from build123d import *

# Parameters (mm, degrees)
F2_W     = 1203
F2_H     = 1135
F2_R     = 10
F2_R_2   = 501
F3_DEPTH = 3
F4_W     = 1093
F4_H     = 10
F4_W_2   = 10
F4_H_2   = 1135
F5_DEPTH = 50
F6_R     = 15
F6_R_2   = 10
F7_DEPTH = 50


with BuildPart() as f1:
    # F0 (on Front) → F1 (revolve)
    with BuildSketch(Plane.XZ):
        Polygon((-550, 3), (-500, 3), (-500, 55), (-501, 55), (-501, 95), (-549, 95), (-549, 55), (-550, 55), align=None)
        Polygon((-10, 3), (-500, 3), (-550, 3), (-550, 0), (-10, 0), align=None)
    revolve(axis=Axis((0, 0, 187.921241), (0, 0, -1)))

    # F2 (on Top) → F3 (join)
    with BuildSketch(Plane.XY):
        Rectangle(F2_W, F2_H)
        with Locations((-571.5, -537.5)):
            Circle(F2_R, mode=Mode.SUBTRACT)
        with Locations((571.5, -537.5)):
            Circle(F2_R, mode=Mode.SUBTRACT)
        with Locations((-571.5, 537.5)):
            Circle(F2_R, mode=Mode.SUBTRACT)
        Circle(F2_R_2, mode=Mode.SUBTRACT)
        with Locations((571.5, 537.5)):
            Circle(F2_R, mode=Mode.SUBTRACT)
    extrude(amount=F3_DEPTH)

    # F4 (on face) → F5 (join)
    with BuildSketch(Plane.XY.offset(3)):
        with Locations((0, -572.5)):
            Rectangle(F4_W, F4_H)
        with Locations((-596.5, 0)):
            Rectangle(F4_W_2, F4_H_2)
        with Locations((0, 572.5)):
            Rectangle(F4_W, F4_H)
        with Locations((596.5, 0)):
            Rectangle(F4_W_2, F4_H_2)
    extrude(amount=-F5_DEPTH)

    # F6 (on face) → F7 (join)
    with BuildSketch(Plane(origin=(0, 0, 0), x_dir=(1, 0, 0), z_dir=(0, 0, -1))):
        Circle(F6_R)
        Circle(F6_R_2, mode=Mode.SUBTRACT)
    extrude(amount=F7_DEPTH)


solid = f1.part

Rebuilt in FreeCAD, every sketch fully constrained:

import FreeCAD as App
import Part
import Sketcher
Q = App.Units.Quantity

doc = App.newDocument("Part")
body = doc.addObject("PartDesign::Body", "Body")

sketch1 = doc.addObject("Sketcher::SketchObject", "Sketch")
body.addObject(sketch1)
sketch1.AttachmentSupport = (doc.XZ_Plane, [""])
sketch1.MapMode = "FlatFace"
sketch1.addGeometry([
    Part.LineSegment(App.Vector(-500, 3, 0), App.Vector(-500, 55, 0)),
    Part.LineSegment(App.Vector(-500, 55, 0), App.Vector(-501, 55, 0)),
    Part.LineSegment(App.Vector(-501, 55, 0), App.Vector(-501, 95, 0)),
    Part.LineSegment(App.Vector(-501, 95, 0), App.Vector(-549, 95, 0)),
    Part.LineSegment(App.Vector(-549, 95, 0), App.Vector(-549, 55, 0)),
    Part.LineSegment(App.Vector(-549, 55, 0), App.Vector(-550, 55, 0)),
    Part.LineSegment(App.Vector(-550, 55, 0), App.Vector(-550, 0, 0)),
    Part.LineSegment(App.Vector(-550, 0, 0), App.Vector(-10, 0, 0)),
    Part.LineSegment(App.Vector(-10, 0, 0), App.Vector(-10, 3, 0)),
    Part.LineSegment(App.Vector(-10, 3, 0), App.Vector(-500, 3, 0)),
], False)
sketch1.addConstraint([
    Sketcher.Constraint("Coincident", 0, 2, 1, 1),
    Sketcher.Constraint("Coincident", 1, 2, 2, 1),
    Sketcher.Constraint("Coincident", 2, 2, 3, 1),
    Sketcher.Constraint("Coincident", 3, 2, 4, 1),
    Sketcher.Constraint("Coincident", 4, 2, 5, 1),
    Sketcher.Constraint("Coincident", 5, 2, 6, 1),
    Sketcher.Constraint("Coincident", 6, 2, 7, 1),
    Sketcher.Constraint("Coincident", 7, 2, 8, 1),
    Sketcher.Constraint("Coincident", 8, 2, 9, 1),
    Sketcher.Constraint("Coincident", 9, 2, 0, 1),
    Sketcher.Constraint("Vertical", 0),
    Sketcher.Constraint("Horizontal", 1),
    Sketcher.Constraint("Vertical", 2),
    Sketcher.Constraint("Horizontal", 3),
    Sketcher.Constraint("Vertical", 4),
    Sketcher.Constraint("Horizontal", 5),
    Sketcher.Constraint("Vertical", 6),
    Sketcher.Constraint("Horizontal", 7),
    Sketcher.Constraint("Vertical", 8),
    Sketcher.Constraint("Horizontal", 9),
    Sketcher.Constraint("PointOnObject", 6, 2, -1),
    Sketcher.Constraint("Horizontal", 1, 2, 4, 2),
    Sketcher.Constraint("Equal", 1, 5),
    Sketcher.Constraint("DistanceX", 1, 2, 1, 1, Q("1 mm")),
    Sketcher.Constraint("DistanceX", 3, 2, 3, 1, Q("48 mm")),
    Sketcher.Constraint("DistanceX", 7, 1, 7, 2, Q("540 mm")),
    Sketcher.Constraint("DistanceY", 0, 1, 0, 2, Q("52 mm")),
    Sketcher.Constraint("DistanceY", 2, 1, 2, 2, Q("40 mm")),
    Sketcher.Constraint("DistanceY", 6, 2, 6, 1, Q("55 mm")),
    Sketcher.Constraint("DistanceX", 0, 2, -1, 1, Q("500 mm")),
])
revolution = doc.addObject("PartDesign::Revolution", "Revolution")
body.addObject(revolution)
revolution.Profile = sketch1
revolution.ReferenceAxis = (sketch1, ["V_Axis"])
revolution.Angle = 360

sketch2 = doc.addObject("Sketcher::SketchObject", "Sketch001")
body.addObject(sketch2)
sketch2.AttachmentSupport = (doc.XY_Plane, [""])
sketch2.MapMode = "FlatFace"
sketch2.addGeometry([
    Part.LineSegment(App.Vector(-602, 568, 0), App.Vector(-602, -568, 0)),
    Part.LineSegment(App.Vector(-602, -568, 0), App.Vector(602, -568, 0)),
    Part.LineSegment(App.Vector(602, -568, 0), App.Vector(602, 568, 0)),
    Part.LineSegment(App.Vector(602, 568, 0), App.Vector(-602, 568, 0)),
    Part.Circle(App.Vector(-572, -538, 0), App.Vector(0, 0, 1), 10),
    Part.Circle(App.Vector(572, -538, 0), App.Vector(0, 0, 1), 10),
    Part.Circle(App.Vector(-572, 538, 0), App.Vector(0, 0, 1), 10),
    Part.Circle(App.Vector(0, 0, 0), App.Vector(0, 0, 1), 501),
    Part.Circle(App.Vector(572, 538, 0), App.Vector(0, 0, 1), 10),
], False)
sketch2.addConstraint([
    Sketcher.Constraint("Coincident", 0, 2, 1, 1),
    Sketcher.Constraint("Coincident", 1, 2, 2, 1),
    Sketcher.Constraint("Coincident", 2, 2, 3, 1),
    Sketcher.Constraint("Coincident", 3, 2, 0, 1),
    Sketcher.Constraint("Vertical", 0),
    Sketcher.Constraint("Horizontal", 1),
    Sketcher.Constraint("Vertical", 2),
    Sketcher.Constraint("Horizontal", 3),
    Sketcher.Constraint("Coincident", 7, 3, -1, 1),
    Sketcher.Constraint("Equal", 4, 5),
    Sketcher.Constraint("Equal", 5, 6),
    Sketcher.Constraint("Equal", 6, 8),
    Sketcher.Constraint("Symmetric", 5, 3, 6, 3, -1, 1),
    Sketcher.Constraint("Symmetric", 4, 3, 8, 3, -1, 1),
    Sketcher.Constraint("Symmetric", 0, 2, 2, 2, -1, 1),
    Sketcher.Constraint("Symmetric", 4, 3, 5, 3, -2),
    Sketcher.Constraint("Diameter", 4, Q("20 mm")),
    Sketcher.Constraint("Diameter", 7, Q("1002 mm")),
    Sketcher.Constraint("DistanceX", 1, 1, 1, 2, Q("1203 mm")),
    Sketcher.Constraint("DistanceY", 0, 2, 0, 1, Q("1135 mm")),
    Sketcher.Constraint("DistanceX", 4, 3, 5, 3, Q("1143 mm")),
    Sketcher.Constraint("DistanceY", 4, 3, 6, 3, Q("1075 mm")),
])
pad1 = doc.addObject("PartDesign::Pad", "Pad")
body.addObject(pad1)
pad1.Profile = sketch2
pad1.Length = 3

sketch3 = doc.addObject("Sketcher::SketchObject", "Sketch002")
body.addObject(sketch3)
sketch3.AttachmentSupport = (doc.XY_Plane, [""])
sketch3.MapMode = "FlatFace"
sketch3.AttachmentOffset = App.Placement(App.Vector(0, 0, 3), App.Rotation())
sketch3.addGeometry([
    Part.LineSegment(App.Vector(-546, -568, 0), App.Vector(-546, -578, 0)),
    Part.LineSegment(App.Vector(-546, -578, 0), App.Vector(546, -578, 0)),
    Part.LineSegment(App.Vector(546, -578, 0), App.Vector(546, -568, 0)),
    Part.LineSegment(App.Vector(546, -568, 0), App.Vector(-546, -568, 0)),
    Part.LineSegment(App.Vector(-602, 568, 0), App.Vector(-602, -568, 0)),
    Part.LineSegment(App.Vector(-602, -568, 0), App.Vector(-592, -568, 0)),
    Part.LineSegment(App.Vector(-592, -568, 0), App.Vector(-592, 568, 0)),
    Part.LineSegment(App.Vector(-592, 568, 0), App.Vector(-602, 568, 0)),
    Part.LineSegment(App.Vector(-546, 578, 0), App.Vector(-546, 568, 0)),
    Part.LineSegment(App.Vector(-546, 568, 0), App.Vector(546, 568, 0)),
    Part.LineSegment(App.Vector(546, 568, 0), App.Vector(546, 578, 0)),
    Part.LineSegment(App.Vector(546, 578, 0), App.Vector(-546, 578, 0)),
    Part.LineSegment(App.Vector(592, 568, 0), App.Vector(592, -568, 0)),
    Part.LineSegment(App.Vector(592, -568, 0), App.Vector(602, -568, 0)),
    Part.LineSegment(App.Vector(602, -568, 0), App.Vector(602, 568, 0)),
    Part.LineSegment(App.Vector(602, 568, 0), App.Vector(592, 568, 0)),
], False)
sketch3.addConstraint([
    Sketcher.Constraint("Coincident", 0, 2, 1, 1),
    Sketcher.Constraint("Coincident", 1, 2, 2, 1),
    Sketcher.Constraint("Coincident", 2, 2, 3, 1),
    Sketcher.Constraint("Coincident", 3, 2, 0, 1),
    Sketcher.Constraint("Coincident", 4, 2, 5, 1),
    Sketcher.Constraint("Coincident", 5, 2, 6, 1),
    Sketcher.Constraint("Coincident", 6, 2, 7, 1),
    Sketcher.Constraint("Coincident", 7, 2, 4, 1),
    Sketcher.Constraint("Coincident", 8, 2, 9, 1),
    Sketcher.Constraint("Coincident", 9, 2, 10, 1),
    Sketcher.Constraint("Coincident", 10, 2, 11, 1),
    Sketcher.Constraint("Coincident", 11, 2, 8, 1),
    Sketcher.Constraint("Coincident", 12, 2, 13, 1),
    Sketcher.Constraint("Coincident", 13, 2, 14, 1),
    Sketcher.Constraint("Coincident", 14, 2, 15, 1),
    Sketcher.Constraint("Coincident", 15, 2, 12, 1),
    Sketcher.Constraint("Vertical", 0),
    Sketcher.Constraint("Horizontal", 1),
    Sketcher.Constraint("Vertical", 2),
    Sketcher.Constraint("Horizontal", 3),
    Sketcher.Constraint("Vertical", 4),
    Sketcher.Constraint("Horizontal", 5),
    Sketcher.Constraint("Vertical", 6),
    Sketcher.Constraint("Horizontal", 7),
    Sketcher.Constraint("Vertical", 8),
    Sketcher.Constraint("Horizontal", 9),
    Sketcher.Constraint("Vertical", 10),
    Sketcher.Constraint("Horizontal", 11),
    Sketcher.Constraint("Vertical", 12),
    Sketcher.Constraint("Horizontal", 13),
    Sketcher.Constraint("Vertical", 14),
    Sketcher.Constraint("Horizontal", 15),
    Sketcher.Constraint("Symmetric", 2, 2, 8, 2, -1, 1),
    Sketcher.Constraint("Symmetric", 0, 2, 10, 2, -1, 1),
    Sketcher.Constraint("Symmetric", 6, 2, 12, 2, -1, 1),
    Sketcher.Constraint("Symmetric", 4, 2, 14, 2, -1, 1),
    Sketcher.Constraint("Horizontal", 3, 2, 4, 2),
    Sketcher.Constraint("Horizontal", 7, 2, 8, 2),
    Sketcher.Constraint("Vertical", 3, 2, 8, 2),
    Sketcher.Constraint("Equal", 15, 0),
    Sketcher.Constraint("DistanceX", 1, 1, 1, 2, Q("1093 mm")),
    Sketcher.Constraint("DistanceX", 5, 1, 5, 2, Q("10 mm")),
    Sketcher.Constraint("DistanceY", 4, 2, 4, 1, Q("1135 mm")),
    Sketcher.Constraint("DistanceX", 4, 2, 3, 2, Q("55 mm")),
])
pad2 = doc.addObject("PartDesign::Pad", "Pad001")
body.addObject(pad2)
pad2.Profile = sketch3
pad2.Length = 50
pad2.Reversed = True

sketch4 = doc.addObject("Sketcher::SketchObject", "Sketch003")
body.addObject(sketch4)
sketch4.AttachmentSupport = (doc.XY_Plane, [""])
sketch4.MapMode = "FlatFace"
sketch4.addGeometry([
    Part.Circle(App.Vector(0, 0, 0), App.Vector(0, 0, 1), 15),
    Part.Circle(App.Vector(0, 0, 0), App.Vector(0, 0, 1), 10),
], False)
sketch4.addConstraint([
    Sketcher.Constraint("Coincident", 0, 3, -1, 1),
    Sketcher.Constraint("Coincident", 1, 3, -1, 1),
    Sketcher.Constraint("Diameter", 0, Q("30 mm")),
    Sketcher.Constraint("Diameter", 1, Q("20 mm")),
])
pad3 = doc.addObject("PartDesign::Pad", "Pad002")
body.addObject(pad3)
pad3.Profile = sketch4
pad3.Length = 50
pad3.Reversed = True

doc.recompute()
